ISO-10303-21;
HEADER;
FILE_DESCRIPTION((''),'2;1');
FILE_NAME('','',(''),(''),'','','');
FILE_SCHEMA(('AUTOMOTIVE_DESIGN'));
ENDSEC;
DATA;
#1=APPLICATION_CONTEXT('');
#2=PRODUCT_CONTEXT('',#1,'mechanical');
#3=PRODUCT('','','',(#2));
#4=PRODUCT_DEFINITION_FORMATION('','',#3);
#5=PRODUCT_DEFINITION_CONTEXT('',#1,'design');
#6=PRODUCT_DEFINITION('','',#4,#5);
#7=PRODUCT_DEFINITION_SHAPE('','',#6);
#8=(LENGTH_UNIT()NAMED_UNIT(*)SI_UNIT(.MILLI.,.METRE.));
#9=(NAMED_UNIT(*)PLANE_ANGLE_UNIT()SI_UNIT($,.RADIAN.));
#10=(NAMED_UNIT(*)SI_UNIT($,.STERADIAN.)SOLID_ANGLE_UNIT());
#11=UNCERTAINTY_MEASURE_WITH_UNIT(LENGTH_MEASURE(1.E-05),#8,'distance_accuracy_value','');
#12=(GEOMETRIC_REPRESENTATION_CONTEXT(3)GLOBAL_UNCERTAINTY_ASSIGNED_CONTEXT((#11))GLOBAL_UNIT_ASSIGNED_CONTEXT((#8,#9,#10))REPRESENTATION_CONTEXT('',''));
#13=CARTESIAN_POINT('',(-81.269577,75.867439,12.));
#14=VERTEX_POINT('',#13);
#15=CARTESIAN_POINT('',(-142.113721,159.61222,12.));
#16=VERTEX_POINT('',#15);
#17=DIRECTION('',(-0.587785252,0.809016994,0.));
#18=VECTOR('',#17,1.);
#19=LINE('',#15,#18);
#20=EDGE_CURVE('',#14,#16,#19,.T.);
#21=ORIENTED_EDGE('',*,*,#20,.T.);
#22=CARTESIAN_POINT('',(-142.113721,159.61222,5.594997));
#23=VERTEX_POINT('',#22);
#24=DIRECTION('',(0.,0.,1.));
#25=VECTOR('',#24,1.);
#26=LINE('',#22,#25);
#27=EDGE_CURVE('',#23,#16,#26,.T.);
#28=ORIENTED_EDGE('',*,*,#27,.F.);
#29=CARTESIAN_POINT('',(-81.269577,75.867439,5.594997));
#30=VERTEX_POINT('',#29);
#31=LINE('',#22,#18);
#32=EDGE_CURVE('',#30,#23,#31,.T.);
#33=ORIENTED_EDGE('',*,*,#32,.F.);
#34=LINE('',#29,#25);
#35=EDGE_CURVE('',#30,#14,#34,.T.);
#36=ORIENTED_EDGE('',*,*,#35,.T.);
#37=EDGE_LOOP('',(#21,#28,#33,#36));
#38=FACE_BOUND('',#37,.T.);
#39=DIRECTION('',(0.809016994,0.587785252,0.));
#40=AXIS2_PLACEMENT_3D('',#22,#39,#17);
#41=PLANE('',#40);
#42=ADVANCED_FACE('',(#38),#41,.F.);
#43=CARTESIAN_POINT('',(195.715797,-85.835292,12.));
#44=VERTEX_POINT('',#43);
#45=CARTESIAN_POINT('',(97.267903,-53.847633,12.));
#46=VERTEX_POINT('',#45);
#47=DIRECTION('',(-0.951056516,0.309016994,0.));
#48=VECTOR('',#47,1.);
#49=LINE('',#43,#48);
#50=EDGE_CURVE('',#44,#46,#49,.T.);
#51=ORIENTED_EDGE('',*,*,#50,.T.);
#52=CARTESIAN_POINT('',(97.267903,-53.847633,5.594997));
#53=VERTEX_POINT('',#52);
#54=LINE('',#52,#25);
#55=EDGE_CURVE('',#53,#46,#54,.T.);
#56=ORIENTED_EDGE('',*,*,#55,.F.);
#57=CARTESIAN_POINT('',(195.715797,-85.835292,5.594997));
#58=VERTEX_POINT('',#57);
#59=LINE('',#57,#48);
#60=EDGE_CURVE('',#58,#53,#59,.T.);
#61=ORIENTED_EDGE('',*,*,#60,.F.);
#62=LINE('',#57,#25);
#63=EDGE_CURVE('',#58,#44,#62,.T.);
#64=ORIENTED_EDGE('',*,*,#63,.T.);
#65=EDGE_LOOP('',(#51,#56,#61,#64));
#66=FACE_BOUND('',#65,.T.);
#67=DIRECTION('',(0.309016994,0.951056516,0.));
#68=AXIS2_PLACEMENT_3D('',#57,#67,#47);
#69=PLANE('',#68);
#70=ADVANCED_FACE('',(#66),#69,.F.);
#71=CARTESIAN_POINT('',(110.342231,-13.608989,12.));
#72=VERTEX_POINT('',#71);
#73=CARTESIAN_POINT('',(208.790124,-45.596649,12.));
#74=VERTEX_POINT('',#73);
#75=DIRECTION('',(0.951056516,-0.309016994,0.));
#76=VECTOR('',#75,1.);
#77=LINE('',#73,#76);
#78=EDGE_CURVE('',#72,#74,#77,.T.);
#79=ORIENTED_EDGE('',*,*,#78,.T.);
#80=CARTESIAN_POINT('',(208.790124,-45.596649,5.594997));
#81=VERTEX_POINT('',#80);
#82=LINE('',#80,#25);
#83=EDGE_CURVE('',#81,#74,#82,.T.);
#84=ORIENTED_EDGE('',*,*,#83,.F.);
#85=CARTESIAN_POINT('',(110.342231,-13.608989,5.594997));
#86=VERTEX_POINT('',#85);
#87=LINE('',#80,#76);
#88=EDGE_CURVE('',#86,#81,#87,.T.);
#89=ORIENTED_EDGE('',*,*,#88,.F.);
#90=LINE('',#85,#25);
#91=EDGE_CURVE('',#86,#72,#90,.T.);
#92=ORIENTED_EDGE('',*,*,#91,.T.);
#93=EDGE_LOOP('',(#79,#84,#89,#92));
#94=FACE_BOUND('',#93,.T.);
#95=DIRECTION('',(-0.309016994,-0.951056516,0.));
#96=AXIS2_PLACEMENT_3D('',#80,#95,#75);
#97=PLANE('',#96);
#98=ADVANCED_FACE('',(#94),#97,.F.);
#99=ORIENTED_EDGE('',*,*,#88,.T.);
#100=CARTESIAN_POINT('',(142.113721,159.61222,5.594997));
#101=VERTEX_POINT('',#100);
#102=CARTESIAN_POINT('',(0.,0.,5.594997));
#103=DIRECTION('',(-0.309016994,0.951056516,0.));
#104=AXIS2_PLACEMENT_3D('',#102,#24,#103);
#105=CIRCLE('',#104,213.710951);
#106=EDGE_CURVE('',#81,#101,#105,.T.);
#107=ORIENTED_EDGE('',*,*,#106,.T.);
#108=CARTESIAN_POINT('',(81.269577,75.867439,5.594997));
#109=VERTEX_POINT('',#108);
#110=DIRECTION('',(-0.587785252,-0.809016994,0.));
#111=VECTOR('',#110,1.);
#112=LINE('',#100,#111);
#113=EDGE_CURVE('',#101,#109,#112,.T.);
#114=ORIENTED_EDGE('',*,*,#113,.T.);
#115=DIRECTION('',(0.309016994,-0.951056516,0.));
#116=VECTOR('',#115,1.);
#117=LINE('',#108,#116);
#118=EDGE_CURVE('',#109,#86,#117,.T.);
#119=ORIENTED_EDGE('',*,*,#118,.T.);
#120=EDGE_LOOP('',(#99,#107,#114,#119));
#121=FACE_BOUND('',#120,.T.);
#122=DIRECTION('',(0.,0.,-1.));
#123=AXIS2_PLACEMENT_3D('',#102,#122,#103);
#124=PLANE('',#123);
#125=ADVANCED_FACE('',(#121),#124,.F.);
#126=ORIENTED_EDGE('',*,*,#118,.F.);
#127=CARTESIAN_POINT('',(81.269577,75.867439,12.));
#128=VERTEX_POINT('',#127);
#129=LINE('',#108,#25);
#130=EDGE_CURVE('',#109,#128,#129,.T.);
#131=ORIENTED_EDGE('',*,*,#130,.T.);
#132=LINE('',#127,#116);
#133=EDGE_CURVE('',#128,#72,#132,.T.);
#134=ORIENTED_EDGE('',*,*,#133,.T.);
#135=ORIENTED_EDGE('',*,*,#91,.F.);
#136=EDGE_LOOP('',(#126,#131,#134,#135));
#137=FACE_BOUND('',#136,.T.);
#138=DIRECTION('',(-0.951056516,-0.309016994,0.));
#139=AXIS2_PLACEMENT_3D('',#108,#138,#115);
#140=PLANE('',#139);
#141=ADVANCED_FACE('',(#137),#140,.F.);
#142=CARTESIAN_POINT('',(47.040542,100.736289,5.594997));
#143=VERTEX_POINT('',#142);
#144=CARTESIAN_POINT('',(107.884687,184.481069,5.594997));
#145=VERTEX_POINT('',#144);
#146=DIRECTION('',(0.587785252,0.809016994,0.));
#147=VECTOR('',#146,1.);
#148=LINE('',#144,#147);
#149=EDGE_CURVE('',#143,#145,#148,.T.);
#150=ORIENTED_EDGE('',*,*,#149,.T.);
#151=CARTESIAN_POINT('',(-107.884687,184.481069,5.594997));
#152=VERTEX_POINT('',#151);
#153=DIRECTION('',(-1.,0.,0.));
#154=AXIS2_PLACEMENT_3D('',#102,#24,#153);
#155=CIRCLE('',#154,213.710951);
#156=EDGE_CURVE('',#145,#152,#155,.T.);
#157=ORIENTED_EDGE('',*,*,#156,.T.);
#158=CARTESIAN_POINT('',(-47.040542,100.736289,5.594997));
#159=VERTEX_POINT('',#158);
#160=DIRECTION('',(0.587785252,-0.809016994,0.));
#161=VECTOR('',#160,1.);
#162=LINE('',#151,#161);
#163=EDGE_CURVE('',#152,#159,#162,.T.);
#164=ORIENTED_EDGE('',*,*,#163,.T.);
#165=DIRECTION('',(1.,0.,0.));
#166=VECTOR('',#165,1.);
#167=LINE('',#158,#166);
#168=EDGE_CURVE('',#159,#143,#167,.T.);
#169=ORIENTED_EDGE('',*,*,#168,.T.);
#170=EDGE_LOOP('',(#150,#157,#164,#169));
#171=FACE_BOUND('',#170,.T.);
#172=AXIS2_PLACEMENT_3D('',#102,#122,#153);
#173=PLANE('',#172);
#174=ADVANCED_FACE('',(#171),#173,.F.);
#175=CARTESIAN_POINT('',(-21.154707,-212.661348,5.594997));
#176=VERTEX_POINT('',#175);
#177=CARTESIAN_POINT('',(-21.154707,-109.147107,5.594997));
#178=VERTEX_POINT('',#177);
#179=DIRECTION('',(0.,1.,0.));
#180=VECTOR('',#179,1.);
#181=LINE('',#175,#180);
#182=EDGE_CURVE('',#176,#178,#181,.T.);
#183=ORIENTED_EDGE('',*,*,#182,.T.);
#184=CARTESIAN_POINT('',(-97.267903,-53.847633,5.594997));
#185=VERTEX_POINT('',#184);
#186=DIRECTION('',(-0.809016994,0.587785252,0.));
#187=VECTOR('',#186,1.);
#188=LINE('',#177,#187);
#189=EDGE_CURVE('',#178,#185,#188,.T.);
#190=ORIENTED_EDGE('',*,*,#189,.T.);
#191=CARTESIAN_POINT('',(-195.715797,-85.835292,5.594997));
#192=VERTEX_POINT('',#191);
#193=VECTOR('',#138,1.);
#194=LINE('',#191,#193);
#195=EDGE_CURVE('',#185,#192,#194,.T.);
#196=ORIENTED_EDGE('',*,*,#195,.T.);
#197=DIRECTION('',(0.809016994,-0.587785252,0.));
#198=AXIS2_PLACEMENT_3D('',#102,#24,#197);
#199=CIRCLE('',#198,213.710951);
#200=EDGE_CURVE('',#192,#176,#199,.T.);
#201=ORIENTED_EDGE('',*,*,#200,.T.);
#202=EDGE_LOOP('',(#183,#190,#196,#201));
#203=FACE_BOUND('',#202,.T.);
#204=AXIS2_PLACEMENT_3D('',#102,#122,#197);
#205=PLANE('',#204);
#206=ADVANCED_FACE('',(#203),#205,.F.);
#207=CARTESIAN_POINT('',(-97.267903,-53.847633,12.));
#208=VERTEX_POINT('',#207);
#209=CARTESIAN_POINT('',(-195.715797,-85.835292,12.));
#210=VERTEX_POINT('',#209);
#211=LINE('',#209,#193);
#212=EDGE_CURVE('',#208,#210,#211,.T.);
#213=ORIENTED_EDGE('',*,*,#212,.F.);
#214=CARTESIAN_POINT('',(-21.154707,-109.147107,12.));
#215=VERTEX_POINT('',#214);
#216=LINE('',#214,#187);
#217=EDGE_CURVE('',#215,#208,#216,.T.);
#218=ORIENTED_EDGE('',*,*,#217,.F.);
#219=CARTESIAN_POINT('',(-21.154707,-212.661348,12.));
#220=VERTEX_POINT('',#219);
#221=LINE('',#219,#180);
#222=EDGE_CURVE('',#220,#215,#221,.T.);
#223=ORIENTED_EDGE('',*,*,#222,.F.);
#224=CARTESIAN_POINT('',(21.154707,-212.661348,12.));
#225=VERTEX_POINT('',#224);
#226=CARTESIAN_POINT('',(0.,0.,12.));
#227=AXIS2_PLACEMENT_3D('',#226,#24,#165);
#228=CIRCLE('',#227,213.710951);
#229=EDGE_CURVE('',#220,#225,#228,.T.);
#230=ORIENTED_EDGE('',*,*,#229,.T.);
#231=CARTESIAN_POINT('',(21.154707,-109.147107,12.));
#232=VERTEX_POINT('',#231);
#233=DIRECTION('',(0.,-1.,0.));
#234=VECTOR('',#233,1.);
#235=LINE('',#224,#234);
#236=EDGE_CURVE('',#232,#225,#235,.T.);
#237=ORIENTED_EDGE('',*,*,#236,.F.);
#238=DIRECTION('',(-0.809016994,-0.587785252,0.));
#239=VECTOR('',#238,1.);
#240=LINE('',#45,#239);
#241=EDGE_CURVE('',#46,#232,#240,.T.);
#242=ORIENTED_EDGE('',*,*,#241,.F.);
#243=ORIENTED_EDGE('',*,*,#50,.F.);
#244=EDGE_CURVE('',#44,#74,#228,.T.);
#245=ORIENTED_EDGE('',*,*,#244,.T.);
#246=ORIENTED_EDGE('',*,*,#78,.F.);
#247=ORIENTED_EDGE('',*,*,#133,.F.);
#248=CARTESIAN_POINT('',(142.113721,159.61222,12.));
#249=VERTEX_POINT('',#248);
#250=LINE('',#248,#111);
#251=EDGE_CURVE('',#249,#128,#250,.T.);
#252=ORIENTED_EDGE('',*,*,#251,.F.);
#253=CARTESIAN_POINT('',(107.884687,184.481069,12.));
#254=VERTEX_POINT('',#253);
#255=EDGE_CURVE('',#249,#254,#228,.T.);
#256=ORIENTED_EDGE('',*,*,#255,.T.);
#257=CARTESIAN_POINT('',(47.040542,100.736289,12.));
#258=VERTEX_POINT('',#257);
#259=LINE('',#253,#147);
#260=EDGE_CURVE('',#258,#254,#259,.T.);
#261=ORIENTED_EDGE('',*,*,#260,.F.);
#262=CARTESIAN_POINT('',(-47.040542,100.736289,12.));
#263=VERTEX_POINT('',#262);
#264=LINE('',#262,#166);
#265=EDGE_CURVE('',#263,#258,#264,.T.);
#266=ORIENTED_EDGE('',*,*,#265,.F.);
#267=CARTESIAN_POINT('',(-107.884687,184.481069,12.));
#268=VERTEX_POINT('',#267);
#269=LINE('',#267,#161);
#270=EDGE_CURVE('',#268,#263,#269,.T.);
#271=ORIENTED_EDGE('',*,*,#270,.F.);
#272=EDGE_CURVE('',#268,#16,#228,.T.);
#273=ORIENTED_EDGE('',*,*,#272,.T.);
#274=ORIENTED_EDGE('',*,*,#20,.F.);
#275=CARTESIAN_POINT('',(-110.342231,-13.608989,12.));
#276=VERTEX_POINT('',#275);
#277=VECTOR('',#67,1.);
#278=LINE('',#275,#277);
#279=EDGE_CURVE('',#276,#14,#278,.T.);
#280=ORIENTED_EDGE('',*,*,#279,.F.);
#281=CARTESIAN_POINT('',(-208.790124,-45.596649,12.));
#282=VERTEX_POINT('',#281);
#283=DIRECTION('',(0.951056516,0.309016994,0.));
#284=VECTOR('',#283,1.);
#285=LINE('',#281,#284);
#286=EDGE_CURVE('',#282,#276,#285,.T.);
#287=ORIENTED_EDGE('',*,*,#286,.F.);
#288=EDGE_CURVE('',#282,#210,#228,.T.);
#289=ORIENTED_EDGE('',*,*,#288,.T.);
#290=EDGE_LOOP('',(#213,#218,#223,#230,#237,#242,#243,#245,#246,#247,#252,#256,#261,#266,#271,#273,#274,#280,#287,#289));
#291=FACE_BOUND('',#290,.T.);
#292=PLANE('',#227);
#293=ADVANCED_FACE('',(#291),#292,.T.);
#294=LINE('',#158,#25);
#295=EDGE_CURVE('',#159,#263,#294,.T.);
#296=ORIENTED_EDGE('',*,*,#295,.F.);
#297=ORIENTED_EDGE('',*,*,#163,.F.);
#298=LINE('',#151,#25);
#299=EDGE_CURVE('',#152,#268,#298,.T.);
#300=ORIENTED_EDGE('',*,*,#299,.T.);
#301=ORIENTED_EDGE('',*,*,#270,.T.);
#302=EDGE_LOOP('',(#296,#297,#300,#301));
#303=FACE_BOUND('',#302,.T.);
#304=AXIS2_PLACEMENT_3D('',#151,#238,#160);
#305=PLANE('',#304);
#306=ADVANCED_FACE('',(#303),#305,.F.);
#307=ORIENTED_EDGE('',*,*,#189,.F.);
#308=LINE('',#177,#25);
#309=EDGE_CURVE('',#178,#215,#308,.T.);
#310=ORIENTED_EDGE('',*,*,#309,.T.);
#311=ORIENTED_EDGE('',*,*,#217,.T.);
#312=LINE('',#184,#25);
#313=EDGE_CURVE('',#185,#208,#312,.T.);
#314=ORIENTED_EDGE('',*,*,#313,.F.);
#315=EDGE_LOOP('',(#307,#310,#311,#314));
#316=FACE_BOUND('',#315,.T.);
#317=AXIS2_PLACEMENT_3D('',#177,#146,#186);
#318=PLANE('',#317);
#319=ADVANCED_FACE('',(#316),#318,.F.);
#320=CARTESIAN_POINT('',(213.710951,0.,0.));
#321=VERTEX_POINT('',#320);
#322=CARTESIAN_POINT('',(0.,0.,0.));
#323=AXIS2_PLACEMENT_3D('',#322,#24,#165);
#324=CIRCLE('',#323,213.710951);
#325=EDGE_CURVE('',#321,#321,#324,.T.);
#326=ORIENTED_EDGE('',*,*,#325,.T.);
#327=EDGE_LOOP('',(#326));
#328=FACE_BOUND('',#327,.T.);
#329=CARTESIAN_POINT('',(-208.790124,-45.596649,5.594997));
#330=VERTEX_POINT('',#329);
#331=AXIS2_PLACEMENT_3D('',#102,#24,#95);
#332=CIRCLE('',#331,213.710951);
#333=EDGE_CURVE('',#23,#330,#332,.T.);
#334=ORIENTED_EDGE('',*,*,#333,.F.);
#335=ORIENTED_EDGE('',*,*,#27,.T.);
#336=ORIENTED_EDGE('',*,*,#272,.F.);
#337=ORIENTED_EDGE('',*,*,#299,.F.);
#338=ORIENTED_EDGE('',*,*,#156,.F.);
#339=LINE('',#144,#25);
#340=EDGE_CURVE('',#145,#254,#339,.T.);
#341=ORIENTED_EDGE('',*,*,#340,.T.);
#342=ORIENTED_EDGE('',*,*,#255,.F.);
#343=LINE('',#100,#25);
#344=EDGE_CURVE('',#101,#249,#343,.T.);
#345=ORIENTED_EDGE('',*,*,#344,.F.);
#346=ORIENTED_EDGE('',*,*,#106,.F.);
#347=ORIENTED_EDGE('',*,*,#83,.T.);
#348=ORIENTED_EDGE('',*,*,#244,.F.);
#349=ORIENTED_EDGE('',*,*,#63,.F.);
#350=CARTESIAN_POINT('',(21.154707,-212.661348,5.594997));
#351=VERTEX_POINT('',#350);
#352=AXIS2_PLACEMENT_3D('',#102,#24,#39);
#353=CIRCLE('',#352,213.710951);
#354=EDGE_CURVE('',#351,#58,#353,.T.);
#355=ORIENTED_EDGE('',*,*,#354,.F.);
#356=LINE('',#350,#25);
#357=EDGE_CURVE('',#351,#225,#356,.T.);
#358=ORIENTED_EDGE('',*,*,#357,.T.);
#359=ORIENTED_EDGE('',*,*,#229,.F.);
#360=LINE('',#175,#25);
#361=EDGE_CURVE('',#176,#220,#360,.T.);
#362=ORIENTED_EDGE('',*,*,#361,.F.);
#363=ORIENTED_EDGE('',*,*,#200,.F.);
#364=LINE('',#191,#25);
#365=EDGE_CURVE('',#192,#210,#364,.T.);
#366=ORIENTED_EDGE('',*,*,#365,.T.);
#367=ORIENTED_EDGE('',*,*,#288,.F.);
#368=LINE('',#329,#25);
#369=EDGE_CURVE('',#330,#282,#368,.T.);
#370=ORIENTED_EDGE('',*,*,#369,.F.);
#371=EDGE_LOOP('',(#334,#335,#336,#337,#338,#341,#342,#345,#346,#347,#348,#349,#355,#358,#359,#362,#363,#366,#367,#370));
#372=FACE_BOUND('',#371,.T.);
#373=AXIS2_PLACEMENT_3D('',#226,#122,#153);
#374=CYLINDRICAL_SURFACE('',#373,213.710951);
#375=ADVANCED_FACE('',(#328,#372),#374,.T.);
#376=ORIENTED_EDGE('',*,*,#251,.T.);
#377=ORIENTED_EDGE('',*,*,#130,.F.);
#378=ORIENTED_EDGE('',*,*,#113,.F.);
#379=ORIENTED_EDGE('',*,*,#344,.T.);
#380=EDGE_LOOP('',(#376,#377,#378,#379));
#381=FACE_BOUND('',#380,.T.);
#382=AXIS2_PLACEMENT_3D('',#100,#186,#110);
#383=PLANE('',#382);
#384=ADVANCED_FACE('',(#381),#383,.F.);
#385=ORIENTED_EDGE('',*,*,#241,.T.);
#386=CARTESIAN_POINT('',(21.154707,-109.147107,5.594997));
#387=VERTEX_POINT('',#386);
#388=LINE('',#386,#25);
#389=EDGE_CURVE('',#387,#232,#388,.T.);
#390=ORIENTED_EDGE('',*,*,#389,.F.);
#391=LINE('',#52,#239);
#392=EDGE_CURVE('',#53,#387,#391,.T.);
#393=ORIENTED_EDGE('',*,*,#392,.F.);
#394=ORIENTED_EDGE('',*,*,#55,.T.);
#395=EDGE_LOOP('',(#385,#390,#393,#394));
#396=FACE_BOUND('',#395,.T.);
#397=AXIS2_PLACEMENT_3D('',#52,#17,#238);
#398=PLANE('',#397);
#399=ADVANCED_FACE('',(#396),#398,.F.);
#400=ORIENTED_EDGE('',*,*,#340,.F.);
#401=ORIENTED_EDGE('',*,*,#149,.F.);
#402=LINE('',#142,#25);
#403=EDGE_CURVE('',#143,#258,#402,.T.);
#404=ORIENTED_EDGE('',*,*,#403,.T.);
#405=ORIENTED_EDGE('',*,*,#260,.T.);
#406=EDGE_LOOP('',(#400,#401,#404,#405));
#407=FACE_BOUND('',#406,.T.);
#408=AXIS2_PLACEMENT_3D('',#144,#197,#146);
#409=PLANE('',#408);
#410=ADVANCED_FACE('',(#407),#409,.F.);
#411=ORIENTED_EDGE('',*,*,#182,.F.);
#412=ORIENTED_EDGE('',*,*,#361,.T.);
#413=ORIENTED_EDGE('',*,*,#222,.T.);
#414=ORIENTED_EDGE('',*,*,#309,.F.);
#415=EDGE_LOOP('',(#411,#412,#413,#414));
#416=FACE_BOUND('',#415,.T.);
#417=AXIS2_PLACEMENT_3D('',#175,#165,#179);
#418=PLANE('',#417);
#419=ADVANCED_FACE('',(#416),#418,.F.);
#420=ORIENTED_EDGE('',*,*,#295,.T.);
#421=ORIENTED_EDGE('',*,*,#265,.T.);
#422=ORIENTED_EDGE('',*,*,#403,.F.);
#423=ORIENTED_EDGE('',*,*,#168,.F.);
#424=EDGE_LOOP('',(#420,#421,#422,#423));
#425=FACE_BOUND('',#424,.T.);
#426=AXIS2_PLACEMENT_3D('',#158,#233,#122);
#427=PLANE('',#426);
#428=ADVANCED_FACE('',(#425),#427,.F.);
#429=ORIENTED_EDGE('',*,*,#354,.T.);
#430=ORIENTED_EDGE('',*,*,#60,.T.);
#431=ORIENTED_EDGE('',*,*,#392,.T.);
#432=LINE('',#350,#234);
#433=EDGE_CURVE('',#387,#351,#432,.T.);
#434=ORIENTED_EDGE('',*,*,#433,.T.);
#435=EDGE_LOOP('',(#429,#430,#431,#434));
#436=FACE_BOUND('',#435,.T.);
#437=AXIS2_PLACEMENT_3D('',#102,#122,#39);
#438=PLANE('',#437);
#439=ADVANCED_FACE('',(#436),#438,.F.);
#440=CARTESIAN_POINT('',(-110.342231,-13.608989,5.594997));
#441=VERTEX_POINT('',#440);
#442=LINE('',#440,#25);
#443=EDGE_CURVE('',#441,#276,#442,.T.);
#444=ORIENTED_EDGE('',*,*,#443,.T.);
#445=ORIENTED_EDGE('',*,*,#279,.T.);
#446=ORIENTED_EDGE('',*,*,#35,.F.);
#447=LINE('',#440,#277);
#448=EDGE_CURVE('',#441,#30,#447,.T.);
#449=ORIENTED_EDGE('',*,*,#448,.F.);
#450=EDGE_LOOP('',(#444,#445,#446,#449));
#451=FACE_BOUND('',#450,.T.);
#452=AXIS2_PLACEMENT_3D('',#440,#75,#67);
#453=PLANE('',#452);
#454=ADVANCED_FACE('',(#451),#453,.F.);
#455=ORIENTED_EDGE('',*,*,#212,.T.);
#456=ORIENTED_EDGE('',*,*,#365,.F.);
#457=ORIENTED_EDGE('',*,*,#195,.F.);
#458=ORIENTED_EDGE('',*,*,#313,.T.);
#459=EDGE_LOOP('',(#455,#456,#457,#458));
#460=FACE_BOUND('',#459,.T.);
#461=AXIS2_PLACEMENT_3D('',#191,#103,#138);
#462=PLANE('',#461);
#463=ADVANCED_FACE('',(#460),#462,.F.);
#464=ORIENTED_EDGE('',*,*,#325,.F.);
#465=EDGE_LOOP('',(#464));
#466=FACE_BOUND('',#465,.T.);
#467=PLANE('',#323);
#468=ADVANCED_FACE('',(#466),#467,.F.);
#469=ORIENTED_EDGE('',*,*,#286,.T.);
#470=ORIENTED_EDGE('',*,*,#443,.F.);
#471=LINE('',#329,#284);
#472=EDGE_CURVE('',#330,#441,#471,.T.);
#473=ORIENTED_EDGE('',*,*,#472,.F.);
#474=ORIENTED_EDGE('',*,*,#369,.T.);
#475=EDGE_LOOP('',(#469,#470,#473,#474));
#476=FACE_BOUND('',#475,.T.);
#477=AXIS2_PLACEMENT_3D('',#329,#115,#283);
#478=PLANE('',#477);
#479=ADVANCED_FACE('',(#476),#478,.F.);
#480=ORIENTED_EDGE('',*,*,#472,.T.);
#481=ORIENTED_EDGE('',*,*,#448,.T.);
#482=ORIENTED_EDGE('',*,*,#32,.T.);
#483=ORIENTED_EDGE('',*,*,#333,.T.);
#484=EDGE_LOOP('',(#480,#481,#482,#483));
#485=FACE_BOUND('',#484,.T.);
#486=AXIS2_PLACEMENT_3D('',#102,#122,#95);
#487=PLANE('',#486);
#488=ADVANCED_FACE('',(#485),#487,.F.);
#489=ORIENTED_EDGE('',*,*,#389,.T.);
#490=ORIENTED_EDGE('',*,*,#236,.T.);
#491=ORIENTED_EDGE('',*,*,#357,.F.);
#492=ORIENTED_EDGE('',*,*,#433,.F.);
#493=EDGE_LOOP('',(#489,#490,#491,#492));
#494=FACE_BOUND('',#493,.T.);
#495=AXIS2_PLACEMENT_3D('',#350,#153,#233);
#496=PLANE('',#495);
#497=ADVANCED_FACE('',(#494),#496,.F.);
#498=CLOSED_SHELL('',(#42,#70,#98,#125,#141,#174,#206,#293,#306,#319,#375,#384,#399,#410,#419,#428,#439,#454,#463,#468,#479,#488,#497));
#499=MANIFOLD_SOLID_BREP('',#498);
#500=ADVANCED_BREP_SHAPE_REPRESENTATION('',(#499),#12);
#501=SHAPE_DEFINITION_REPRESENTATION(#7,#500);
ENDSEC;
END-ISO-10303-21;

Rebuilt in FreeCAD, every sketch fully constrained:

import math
import FreeCAD as App
import Part
import Sketcher

V = App.Vector
Q = App.Units.Quantity

doc = App.newDocument("Part")
body = doc.addObject("PartDesign::Body", "Body")

sketch1 = doc.addObject("Sketcher::SketchObject", "Sketch")
body.addObject(sketch1)
sketch1.AttachmentSupport = (doc.XY_Plane, [""])
sketch1.MapMode = "FlatFace"
sketch1.addGeometry(Part.Circle(V(0, 0, 0), V(0, 0, 1), 213.710951), False)
sketch1.addConstraint([
    Sketcher.Constraint("Coincident", 0, 3, -1, 1),
    Sketcher.Constraint("Diameter", 0, Q("427.421901 mm")),
])
pad1 = doc.addObject("PartDesign::Pad", "Pad")
body.addObject(pad1)
pad1.Profile = sketch1
pad1.Length = 12

sketch2 = doc.addObject("Sketcher::SketchObject", "Sketch001")
body.addObject(sketch2)
sketch2.AttachmentSupport = (doc.XY_Plane, [""])
sketch2.MapMode = "FlatFace"
sketch2.AttachmentOffset = App.Placement(V(0, 0, 5.594997), App.Rotation())
sketch2.addGeometry([
    Part.LineSegment(V(-47.040542, 100.736289, 0), V(47.040542, 100.736289, 0)),
    Part.LineSegment(V(47.040542, 100.736289, 0), V(107.884687, 184.481069, 0)),
    Part.ArcOfCircle(Part.Circle(V(0, 0, 0), V(0, 0, 1), 213.710951), math.radians(59.680868), math.radians(120.319132)),
    Part.LineSegment(V(-107.884687, 184.481069, 0), V(-47.040542, 100.736289, 0)),
], False)
sketch2.addConstraint([
    Sketcher.Constraint("Coincident", 0, 2, 1, 1),
    Sketcher.Constraint("Coincident", 1, 2, 2, 1),
    Sketcher.Constraint("Coincident", 2, 2, 3, 1),
    Sketcher.Constraint("Coincident", 3, 2, 0, 1),
    Sketcher.Constraint("Horizontal", 0),
    Sketcher.Constraint("Coincident", 2, 3, -1, 1),
    Sketcher.Constraint("Horizontal", 1, 2, 2, 2),
    Sketcher.Constraint("Equal", 1, 3),
    Sketcher.Constraint("Angle", 1, Q("54 deg")),
    Sketcher.Constraint("Radius", 2, Q("213.710951 mm")),
    Sketcher.Constraint("Distance", 1, Q("103.514241 mm")),
    Sketcher.Constraint("DistanceX", 0, 1, 0, 2, Q("94.081084 mm")),
])
pocket1 = doc.addObject("PartDesign::Pocket", "Pocket")
body.addObject(pocket1)
pocket1.Profile = sketch2
pocket1.Length = 6.405003
pocket1.Reversed = True
doc.recompute()

polarpattern = doc.addObject("PartDesign::PolarPattern", "PolarPattern")
body.addObject(polarpattern)
polarpattern.Originals = [pocket1]
polarpattern.Axis = (doc.Z_Axis, [""])
polarpattern.Angle = 360
polarpattern.Occurrences = 5
body.Tip = polarpattern

doc.recompute()
